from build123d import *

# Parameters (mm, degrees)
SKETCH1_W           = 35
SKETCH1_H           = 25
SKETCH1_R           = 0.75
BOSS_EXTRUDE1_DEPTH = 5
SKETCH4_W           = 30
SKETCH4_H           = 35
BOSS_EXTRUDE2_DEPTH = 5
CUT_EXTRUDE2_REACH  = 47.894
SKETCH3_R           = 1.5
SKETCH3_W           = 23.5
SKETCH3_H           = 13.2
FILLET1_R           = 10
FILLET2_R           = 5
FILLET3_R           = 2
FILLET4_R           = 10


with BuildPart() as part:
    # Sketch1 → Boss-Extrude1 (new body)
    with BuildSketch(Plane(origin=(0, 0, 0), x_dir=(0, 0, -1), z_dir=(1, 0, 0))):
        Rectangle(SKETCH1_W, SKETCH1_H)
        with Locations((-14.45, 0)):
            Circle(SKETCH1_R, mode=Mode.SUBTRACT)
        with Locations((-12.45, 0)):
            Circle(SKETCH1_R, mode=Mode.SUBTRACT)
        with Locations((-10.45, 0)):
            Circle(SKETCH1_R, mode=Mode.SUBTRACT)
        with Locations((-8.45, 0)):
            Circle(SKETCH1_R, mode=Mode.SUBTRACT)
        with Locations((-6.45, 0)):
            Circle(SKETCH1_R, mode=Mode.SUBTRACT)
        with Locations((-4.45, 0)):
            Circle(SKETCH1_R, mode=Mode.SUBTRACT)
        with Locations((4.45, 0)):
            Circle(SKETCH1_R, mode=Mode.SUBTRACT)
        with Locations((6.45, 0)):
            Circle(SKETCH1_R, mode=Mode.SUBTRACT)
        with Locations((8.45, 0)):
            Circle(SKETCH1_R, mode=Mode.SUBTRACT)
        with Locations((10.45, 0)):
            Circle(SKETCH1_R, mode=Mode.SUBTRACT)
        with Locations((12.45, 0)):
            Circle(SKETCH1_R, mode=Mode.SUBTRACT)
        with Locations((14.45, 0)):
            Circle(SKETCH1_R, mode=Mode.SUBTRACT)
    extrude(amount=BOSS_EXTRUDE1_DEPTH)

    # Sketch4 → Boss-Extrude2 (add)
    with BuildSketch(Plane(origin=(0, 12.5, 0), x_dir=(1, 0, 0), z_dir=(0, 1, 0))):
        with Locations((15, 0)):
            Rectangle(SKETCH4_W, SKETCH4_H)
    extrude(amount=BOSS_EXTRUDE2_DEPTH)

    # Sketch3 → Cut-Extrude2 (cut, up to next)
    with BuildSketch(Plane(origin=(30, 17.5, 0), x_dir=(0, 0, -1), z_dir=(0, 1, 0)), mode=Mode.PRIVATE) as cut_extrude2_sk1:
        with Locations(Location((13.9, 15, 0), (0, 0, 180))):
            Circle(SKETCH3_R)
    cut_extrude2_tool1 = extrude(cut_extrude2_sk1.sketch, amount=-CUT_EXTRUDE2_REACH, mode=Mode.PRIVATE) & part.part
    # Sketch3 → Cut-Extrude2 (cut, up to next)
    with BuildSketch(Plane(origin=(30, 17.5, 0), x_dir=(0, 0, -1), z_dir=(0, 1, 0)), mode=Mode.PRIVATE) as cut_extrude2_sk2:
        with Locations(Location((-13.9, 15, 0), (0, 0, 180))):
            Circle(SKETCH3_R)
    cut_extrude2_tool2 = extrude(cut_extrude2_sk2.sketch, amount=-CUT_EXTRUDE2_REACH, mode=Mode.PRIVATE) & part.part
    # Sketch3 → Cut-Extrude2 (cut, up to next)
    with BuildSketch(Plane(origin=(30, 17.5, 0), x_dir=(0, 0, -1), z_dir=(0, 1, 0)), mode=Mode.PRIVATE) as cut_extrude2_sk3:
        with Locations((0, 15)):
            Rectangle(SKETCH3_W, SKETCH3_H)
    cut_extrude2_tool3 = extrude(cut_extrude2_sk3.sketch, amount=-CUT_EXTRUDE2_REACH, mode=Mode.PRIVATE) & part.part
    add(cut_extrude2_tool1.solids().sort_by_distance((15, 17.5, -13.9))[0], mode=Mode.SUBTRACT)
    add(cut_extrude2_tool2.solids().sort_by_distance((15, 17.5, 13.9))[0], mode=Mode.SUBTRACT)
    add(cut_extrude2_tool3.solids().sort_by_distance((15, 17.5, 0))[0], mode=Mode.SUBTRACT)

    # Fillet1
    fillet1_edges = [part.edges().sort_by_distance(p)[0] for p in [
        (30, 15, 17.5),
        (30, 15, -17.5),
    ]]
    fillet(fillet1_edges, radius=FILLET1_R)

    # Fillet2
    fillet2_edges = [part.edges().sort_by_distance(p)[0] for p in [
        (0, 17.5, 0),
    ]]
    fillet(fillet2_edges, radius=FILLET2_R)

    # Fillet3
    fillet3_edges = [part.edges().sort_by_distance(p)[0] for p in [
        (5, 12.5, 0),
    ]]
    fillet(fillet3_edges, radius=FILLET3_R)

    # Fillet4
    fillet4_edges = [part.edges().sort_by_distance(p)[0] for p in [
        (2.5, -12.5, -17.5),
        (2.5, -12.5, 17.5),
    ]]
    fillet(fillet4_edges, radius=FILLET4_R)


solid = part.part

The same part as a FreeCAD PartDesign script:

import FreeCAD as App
import Part
import Sketcher
Q = App.Units.Quantity


def edges_at(feature, points):
    """Names of the edges that pass closest to the given points."""
    edges = feature.Shape.Edges
    near = lambda p: min(range(len(edges)), key=lambda i: edges[i].distToShape(Part.Vertex(*p))[0])
    return sorted({f"Edge{near(p) + 1}" for p in points})


def add_polygon(sketch, points):
    """Adds a closed chain of lines whose ends are joined by coincident constraints."""
    first, n = sketch.GeometryCount, len(points)
    for a, b in zip(points, points[1:] + points[:1]):
        sketch.addGeometry(Part.LineSegment(App.Vector(*a, 0), App.Vector(*b, 0)), False)
    for i in range(n):
        sketch.addConstraint(Sketcher.Constraint("Coincident", first + i, 2, first + (i + 1) % n, 1))

doc = App.newDocument("Part")
body = doc.addObject("PartDesign::Body", "Body")

sketch1 = body.newObject("Sketcher::SketchObject", "Sketch")
sketch1.AttachmentSupport = (doc.getObject("YZ_Plane"), [""])
sketch1.MapMode = "FlatFace"
add_polygon(sketch1, [(12.5, 17.5), (-12.5, 17.5), (-12.5, -17.5), (12.5, -17.5)])
sketch1.addGeometry(Part.Circle(App.Vector(0, 14.4, 0), App.Vector(0, 0, 1), 0.8), False)
sketch1.addGeometry(Part.Circle(App.Vector(0, 12.4, 0), App.Vector(0, 0, 1), 0.8), False)
sketch1.addGeometry(Part.Circle(App.Vector(0, 10.4, 0), App.Vector(0, 0, 1), 0.8), False)
sketch1.addGeometry(Part.Circle(App.Vector(0, 8.4, 0), App.Vector(0, 0, 1), 0.8), False)
sketch1.addGeometry(Part.Circle(App.Vector(0, 6.5, 0), App.Vector(0, 0, 1), 0.8), False)
sketch1.addGeometry(Part.Circle(App.Vector(0, 4.5, 0), App.Vector(0, 0, 1), 0.8), False)
sketch1.addGeometry(Part.Circle(App.Vector(0, -4.5, 0), App.Vector(0, 0, 1), 0.8), False)
sketch1.addGeometry(Part.Circle(App.Vector(0, -6.5, 0), App.Vector(0, 0, 1), 0.8), False)
sketch1.addGeometry(Part.Circle(App.Vector(0, -8.4, 0), App.Vector(0, 0, 1), 0.8), False)
sketch1.addGeometry(Part.Circle(App.Vector(0, -10.4, 0), App.Vector(0, 0, 1), 0.8), False)
sketch1.addGeometry(Part.Circle(App.Vector(0, -12.4, 0), App.Vector(0, 0, 1), 0.8), False)
sketch1.addGeometry(Part.Circle(App.Vector(0, -14.4, 0), App.Vector(0, 0, 1), 0.8), False)
sketch1.addConstraint([
    Sketcher.Constraint("Horizontal", 0),
    Sketcher.Constraint("Vertical", 1),
    Sketcher.Constraint("Horizontal", 2),
    Sketcher.Constraint("Vertical", 3),
    Sketcher.Constraint("Equal", 4, 5),
    Sketcher.Constraint("Equal", 5, 6),
    Sketcher.Constraint("Equal", 6, 7),
    Sketcher.Constraint("Equal", 7, 8),
    Sketcher.Constraint("Equal", 8, 9),
    Sketcher.Constraint("Equal", 9, 10),
    Sketcher.Constraint("Equal", 10, 11),
    Sketcher.Constraint("Equal", 11, 12),
    Sketcher.Constraint("Equal", 12, 13),
    Sketcher.Constraint("Equal", 13, 14),
    Sketcher.Constraint("Equal", 14, 15),
    Sketcher.Constraint("Symmetric", 9, 3, 10, 3, -1, 1),
    Sketcher.Constraint("Symmetric", 8, 3, 11, 3, -1, 1),
    Sketcher.Constraint("Symmetric", 7, 3, 12, 3, -1, 1),
    Sketcher.Constraint("Symmetric", 6, 3, 13, 3, -1, 1),
    Sketcher.Constraint("Symmetric", 5, 3, 14, 3, -1, 1),
    Sketcher.Constraint("Symmetric", 4, 3, 15, 3, -1, 1),
    Sketcher.Constraint("Symmetric", 0, 2, 2, 2, -1, 1),
    Sketcher.Constraint("PointOnObject", 4, 3, -2),
    Sketcher.Constraint("PointOnObject", 5, 3, -2),
    Sketcher.Constraint("PointOnObject", 6, 3, -2),
    Sketcher.Constraint("PointOnObject", 7, 3, -2),
    Sketcher.Constraint("PointOnObject", 8, 3, -2),
    Sketcher.Constraint("PointOnObject", 9, 3, -2),
    Sketcher.Constraint("Diameter", 4, Q("1.5 mm")),
    Sketcher.Constraint("DistanceX", 0, 2, 0, 1, Q("25 mm")),
    Sketcher.Constraint("DistanceY", 1, 2, 1, 1, Q("35 mm")),
    Sketcher.Constraint("DistanceY", 5, 3, 4, 3, Q("2 mm")),
    Sketcher.Constraint("DistanceY", 6, 3, 5, 3, Q("2 mm")),
    Sketcher.Constraint("DistanceY", 7, 3, 6, 3, Q("2 mm")),
    Sketcher.Constraint("DistanceY", 8, 3, 7, 3, Q("2 mm")),
    Sketcher.Constraint("DistanceY", 9, 3, 8, 3, Q("2 mm")),
    Sketcher.Constraint("DistanceY", 10, 3, 9, 3, Q("8.9 mm")),
])
pad1 = body.newObject("PartDesign::Pad", "Pad")
pad1.Profile = sketch1
pad1.Length = 5

sketch2 = body.newObject("Sketcher::SketchObject", "Sketch001")
sketch2.AttachmentSupport = (doc.getObject("XZ_Plane"), [""])
sketch2.MapMode = "FlatFace"
sketch2.AttachmentOffset = App.Placement(App.Vector(0, 0, -12.5), App.Rotation())
add_polygon(sketch2, [(0, -18), (0, 18), (30, 18), (30, -18)])
sketch2.addConstraint([
    Sketcher.Constraint("Vertical", 0),
    Sketcher.Constraint("Horizontal", 1),
    Sketcher.Constraint("Vertical", 2),
    Sketcher.Constraint("Horizontal", 3),
    Sketcher.Constraint("Symmetric", 0, 2, 3, 2, -1, 1),
    Sketcher.Constraint("DistanceX", 1, 1, 1, 2, Q("30 mm")),
    Sketcher.Constraint("DistanceY", 0, 1, 0, 2, Q("35 mm")),
])
pad2 = body.newObject("PartDesign::Pad", "Pad001")
pad2.Profile = sketch2
pad2.Length = 5
pad2.Reversed = True

sketch3 = body.newObject("Sketcher::SketchObject", "Sketch002")
sketch3.AttachmentSupport = (doc.getObject("XZ_Plane"), [""])
sketch3.MapMode = "FlatFace"
sketch3.AttachmentOffset = App.Placement(App.Vector(0, 0, -17.5), App.Rotation())
sketch3.addGeometry(Part.Circle(App.Vector(15, -13.9, 0), App.Vector(0, 0, 1), 1.5), False)
sketch3.addConstraint([
    Sketcher.Constraint("Diameter", 0, Q("3 mm")),
    Sketcher.Constraint("DistanceX", -1, 1, 0, 3, Q("15 mm")),
    Sketcher.Constraint("DistanceY", 0, 3, -1, 1, Q("13.9 mm")),
])
pocket1 = body.newObject("PartDesign::Pocket", "Pocket")
pocket1.Profile = sketch3
pocket1.Type = "UpToFirst"
pocket1.Reversed = True

sketch4 = body.newObject("Sketcher::SketchObject", "Sketch003")
sketch4.AttachmentSupport = (doc.getObject("XZ_Plane"), [""])
sketch4.MapMode = "FlatFace"
sketch4.AttachmentOffset = App.Placement(App.Vector(0, 0, -17.5), App.Rotation())
sketch4.addGeometry(Part.Circle(App.Vector(15, 13.9, 0), App.Vector(0, 0, 1), 1.5), False)
sketch4.addConstraint([
    Sketcher.Constraint("Diameter", 0, Q("3 mm")),
    Sketcher.Constraint("DistanceX", -1, 1, 0, 3, Q("15 mm")),
    Sketcher.Constraint("DistanceY", -1, 1, 0, 3, Q("13.9 mm")),
])
pocket2 = body.newObject("PartDesign::Pocket", "Pocket001")
pocket2.Profile = sketch4
pocket2.Type = "UpToFirst"
pocket2.Reversed = True

sketch5 = body.newObject("Sketcher::SketchObject", "Sketch004")
sketch5.AttachmentSupport = (doc.getObject("XZ_Plane"), [""])
sketch5.MapMode = "FlatFace"
sketch5.AttachmentOffset = App.Placement(App.Vector(0, 0, -17.5), App.Rotation())
add_polygon(sketch5, [(8, 12), (22, 12), (22, -12), (8, -12)])
sketch5.addConstraint([
    Sketcher.Constraint("Horizontal", 0),
    Sketcher.Constraint("Vertical", 1),
    Sketcher.Constraint("Horizontal", 2),
    Sketcher.Constraint("Vertical", 3),
    Sketcher.Constraint("DistanceX", 0, 1, 0, 2, Q("13.2 mm")),
    Sketcher.Constraint("DistanceY", 1, 2, 1, 1, Q("23.5 mm")),
    Sketcher.Constraint("DistanceX", -1, 1, 0, 2, Q("21.6 mm")),
    Sketcher.Constraint("DistanceY", -1, 1, 0, 2, Q("11.75 mm")),
])
pocket3 = body.newObject("PartDesign::Pocket", "Pocket002")
pocket3.Profile = sketch5
pocket3.Type = "UpToFirst"
pocket3.Reversed = True
doc.recompute()

fillet = body.newObject("PartDesign::Fillet", "Fillet")
fillet.Base = (pocket3, edges_at(pocket3, [(30, 15, 17.5), (30, 15, -17.5)]))
fillet.Radius = 10
doc.recompute()

fillet2 = body.newObject("PartDesign::Fillet", "Fillet001")
fillet2.Base = (fillet, edges_at(fillet, [(0, 17.5, 0)]))
fillet2.Radius = 5
doc.recompute()

fillet3 = body.newObject("PartDesign::Fillet", "Fillet002")
fillet3.Base = (fillet2, edges_at(fillet2, [(5, 12.5, 0)]))
fillet3.Radius = 2
doc.recompute()

fillet4 = body.newObject("PartDesign::Fillet", "Fillet003")
fillet4.Base = (fillet3, edges_at(fillet3, [(2.5, -12.5, -17.5), (2.5, -12.5, 17.5)]))
fillet4.Radius = 10

doc.recompute()
